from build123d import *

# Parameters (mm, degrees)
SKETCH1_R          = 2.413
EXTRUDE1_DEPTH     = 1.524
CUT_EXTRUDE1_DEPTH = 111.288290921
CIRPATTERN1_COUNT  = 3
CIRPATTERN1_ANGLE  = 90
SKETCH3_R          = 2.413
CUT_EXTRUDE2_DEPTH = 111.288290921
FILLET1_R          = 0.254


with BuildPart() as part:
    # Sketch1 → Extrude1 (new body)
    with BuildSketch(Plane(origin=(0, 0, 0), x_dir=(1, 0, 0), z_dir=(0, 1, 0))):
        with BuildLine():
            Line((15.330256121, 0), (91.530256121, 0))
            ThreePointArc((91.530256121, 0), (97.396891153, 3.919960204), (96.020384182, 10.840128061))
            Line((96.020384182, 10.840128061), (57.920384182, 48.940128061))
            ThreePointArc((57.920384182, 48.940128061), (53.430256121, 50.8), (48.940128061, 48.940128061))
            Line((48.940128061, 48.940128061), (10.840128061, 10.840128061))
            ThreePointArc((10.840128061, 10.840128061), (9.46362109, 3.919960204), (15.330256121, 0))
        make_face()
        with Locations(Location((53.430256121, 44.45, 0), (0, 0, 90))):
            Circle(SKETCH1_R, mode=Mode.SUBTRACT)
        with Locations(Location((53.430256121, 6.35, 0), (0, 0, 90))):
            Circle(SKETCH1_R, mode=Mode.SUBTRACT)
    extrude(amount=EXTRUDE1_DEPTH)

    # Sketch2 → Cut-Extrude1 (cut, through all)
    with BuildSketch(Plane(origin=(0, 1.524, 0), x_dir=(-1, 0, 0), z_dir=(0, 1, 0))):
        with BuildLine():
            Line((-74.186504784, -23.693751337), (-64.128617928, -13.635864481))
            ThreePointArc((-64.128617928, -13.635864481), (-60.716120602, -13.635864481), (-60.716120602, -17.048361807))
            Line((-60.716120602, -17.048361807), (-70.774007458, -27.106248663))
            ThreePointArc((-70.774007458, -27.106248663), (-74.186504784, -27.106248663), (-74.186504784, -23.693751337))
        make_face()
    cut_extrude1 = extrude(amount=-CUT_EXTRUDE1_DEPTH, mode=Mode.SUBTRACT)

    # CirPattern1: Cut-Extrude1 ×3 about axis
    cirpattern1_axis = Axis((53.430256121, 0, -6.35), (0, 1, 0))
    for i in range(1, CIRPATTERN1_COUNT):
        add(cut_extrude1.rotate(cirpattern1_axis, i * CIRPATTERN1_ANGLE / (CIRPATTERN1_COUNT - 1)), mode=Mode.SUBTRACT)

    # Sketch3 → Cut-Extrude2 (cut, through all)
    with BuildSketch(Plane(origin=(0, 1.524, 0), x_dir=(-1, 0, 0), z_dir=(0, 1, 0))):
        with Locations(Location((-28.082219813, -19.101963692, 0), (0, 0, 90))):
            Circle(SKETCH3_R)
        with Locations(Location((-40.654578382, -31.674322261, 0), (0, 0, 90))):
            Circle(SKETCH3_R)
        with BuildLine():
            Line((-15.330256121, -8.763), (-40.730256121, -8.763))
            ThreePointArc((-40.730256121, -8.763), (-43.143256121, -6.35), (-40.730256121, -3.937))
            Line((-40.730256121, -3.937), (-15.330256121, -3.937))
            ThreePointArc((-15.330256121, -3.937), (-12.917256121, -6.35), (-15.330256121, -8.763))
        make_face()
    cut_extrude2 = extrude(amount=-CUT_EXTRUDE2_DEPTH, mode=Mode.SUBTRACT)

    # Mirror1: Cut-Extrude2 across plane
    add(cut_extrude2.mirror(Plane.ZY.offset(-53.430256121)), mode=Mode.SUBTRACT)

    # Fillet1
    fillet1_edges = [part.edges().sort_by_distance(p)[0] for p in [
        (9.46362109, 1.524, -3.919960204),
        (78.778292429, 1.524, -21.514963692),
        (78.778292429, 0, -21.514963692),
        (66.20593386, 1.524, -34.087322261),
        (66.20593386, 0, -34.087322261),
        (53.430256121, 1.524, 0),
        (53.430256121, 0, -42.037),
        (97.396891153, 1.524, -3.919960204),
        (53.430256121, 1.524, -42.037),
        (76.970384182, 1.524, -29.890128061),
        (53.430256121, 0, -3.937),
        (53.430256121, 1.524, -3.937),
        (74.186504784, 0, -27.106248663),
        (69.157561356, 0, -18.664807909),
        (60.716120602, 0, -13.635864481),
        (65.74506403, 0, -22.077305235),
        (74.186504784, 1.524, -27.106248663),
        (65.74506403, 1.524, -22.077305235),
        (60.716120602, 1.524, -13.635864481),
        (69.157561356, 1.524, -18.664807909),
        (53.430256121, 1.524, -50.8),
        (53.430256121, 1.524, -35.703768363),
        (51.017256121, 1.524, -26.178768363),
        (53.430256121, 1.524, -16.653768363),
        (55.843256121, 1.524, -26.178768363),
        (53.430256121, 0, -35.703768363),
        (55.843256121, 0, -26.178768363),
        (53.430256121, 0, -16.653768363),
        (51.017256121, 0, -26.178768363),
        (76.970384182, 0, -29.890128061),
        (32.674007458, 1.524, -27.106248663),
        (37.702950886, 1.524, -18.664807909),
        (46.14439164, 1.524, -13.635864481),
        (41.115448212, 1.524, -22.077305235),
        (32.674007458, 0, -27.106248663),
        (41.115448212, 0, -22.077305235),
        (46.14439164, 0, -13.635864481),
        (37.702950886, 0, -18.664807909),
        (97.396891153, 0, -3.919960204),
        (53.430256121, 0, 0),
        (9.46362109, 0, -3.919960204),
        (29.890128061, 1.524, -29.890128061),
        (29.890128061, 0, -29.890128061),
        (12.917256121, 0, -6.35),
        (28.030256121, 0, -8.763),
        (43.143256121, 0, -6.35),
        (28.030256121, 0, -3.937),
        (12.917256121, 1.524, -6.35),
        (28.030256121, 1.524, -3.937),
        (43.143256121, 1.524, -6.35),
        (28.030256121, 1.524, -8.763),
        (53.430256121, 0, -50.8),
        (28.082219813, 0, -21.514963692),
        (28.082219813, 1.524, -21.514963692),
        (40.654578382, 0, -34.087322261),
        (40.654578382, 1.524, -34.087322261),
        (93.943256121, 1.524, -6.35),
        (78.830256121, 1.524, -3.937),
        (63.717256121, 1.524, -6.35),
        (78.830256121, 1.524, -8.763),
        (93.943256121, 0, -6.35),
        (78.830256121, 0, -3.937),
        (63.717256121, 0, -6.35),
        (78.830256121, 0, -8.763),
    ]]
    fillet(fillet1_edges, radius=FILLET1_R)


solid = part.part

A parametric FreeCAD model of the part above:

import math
import FreeCAD as App
import Part
import Sketcher

V = App.Vector
Q = App.Units.Quantity


def edges_at(feature, points):
    """Names of the edges that pass closest to the given points."""
    edges = feature.Shape.Edges
    near = lambda p: min(range(len(edges)), key=lambda i: edges[i].distToShape(Part.Vertex(*p))[0])
    return sorted({f"Edge{near(p) + 1}" for p in points})

doc = App.newDocument("Part")
params = doc.addObject("Spreadsheet::Sheet", "Params")
for row, (alias, value) in enumerate([
    ("sketch1_diameter", "0.19 in"),
    ("sketch1_width", "3 in"),
    ("sketch1_radius", "0.25 in"),
    ("pad1_length", "0.06 in"),
    ("sketch2_radius", "0.095 in"),
    ("sketch2_length", "0.56 in"),
    ("sketch3_diameter", "0.19 in"),
    ("sketch3_width", "1 in"),
    ("fillet_radius", "0.01 in"),
], start=1):
    params.set(f"A{row}", alias)
    params.set(f"B{row}", "=" + value)
    params.setAlias(f"B{row}", alias)

body = doc.addObject("PartDesign::Body", "Body")

sketch1 = body.newObject("Sketcher::SketchObject", "Sketch")
sketch1.AttachmentSupport = (doc.getObject("XZ_Plane"), [""])
sketch1.MapMode = "FlatFace"
sketch1.addGeometry([
    Part.LineSegment(V(15.3, 0, 0), V(91.5, 0, 0)),
    Part.ArcOfCircle(Part.Circle(V(91.5, -6.3, 0), V(0, 0, 1), 6.3), math.radians(-45), math.radians(90)),
    Part.LineSegment(V(96, -10.8, 0), V(57.9, -48.9, 0)),
    Part.ArcOfCircle(Part.Circle(V(53.4, -44.4, 0), V(0, 0, 1), 6.4), math.radians(-135), math.radians(-45)),
    Part.LineSegment(V(48.9, -48.9, 0), V(10.8, -10.8, 0)),
    Part.ArcOfCircle(Part.Circle(V(15.3, -6.3, 0), V(0, 0, 1), 6.3), math.radians(90), math.radians(225)),
    Part.Circle(V(53.4, -6.3, 0), V(0, 0, 1), 2.4),
    Part.Circle(V(53.4, -44.5, 0), V(0, 0, 1), 2.4),
], False)
sketch1.addConstraint([
    Sketcher.Constraint("Tangent", 0, 2, 1, 2),
    Sketcher.Constraint("Tangent", 1, 1, 2, 1),
    Sketcher.Constraint("Tangent", 2, 2, 3, 2),
    Sketcher.Constraint("Tangent", 3, 1, 4, 1),
    Sketcher.Constraint("Tangent", 4, 2, 5, 2),
    Sketcher.Constraint("Tangent", 5, 1, 0, 1),
    Sketcher.Constraint("Horizontal", 0),
    Sketcher.Constraint("Coincident", 7, 3, 3, 3),
    Sketcher.Constraint("Equal", 1, 3),
    Sketcher.Constraint("Equal", 3, 5),
    Sketcher.Constraint("Equal", 6, 7),
    Sketcher.Constraint("PointOnObject", 0, 2, -1),
    Sketcher.Constraint("Perpendicular", 2, 4),
    Sketcher.Constraint("Horizontal", 5, 3, 6, 3),
    Sketcher.Constraint("Horizontal", 2, 2, 3, 1),
    Sketcher.Constraint("Vertical", 3, 3, 6, 3),
    Sketcher.Constraint("Diameter", 6, Q("0.19 in")),
    Sketcher.Constraint("DistanceX", 0, 1, 0, 2, Q("3 in")),
    Sketcher.Constraint("Radius", 1, Q("0.25 in")),
    Sketcher.Constraint("DistanceX", -1, 1, 3, 1, 48.940128),
])
sketch1.setExpression("Constraints[16]", "Params.sketch1_diameter")
sketch1.setExpression("Constraints[17]", "Params.sketch1_width")
sketch1.setExpression("Constraints[18]", "Params.sketch1_radius")
pad1 = body.newObject("PartDesign::Pad", "Pad")
pad1.Profile = sketch1
pad1.setExpression("Length", "Params.pad1_length")
pad1.Reversed = True

sketch2 = body.newObject("Sketcher::SketchObject", "Sketch001")
sketch2.AttachmentSupport = (doc.getObject("XZ_Plane"), [""])
sketch2.MapMode = "FlatFace"
sketch2.AttachmentOffset = App.Placement(V(0, 0, -0.06 * 25.4), App.Rotation())
sketch2.addGeometry([
    Part.LineSegment(V(64.1, -13.6, 0), V(74.2, -23.7, 0)),
    Part.ArcOfCircle(Part.Circle(V(72.5, -25.4, 0), V(0, 0, 1), 2.4), math.radians(-135), math.radians(45)),
    Part.LineSegment(V(70.8, -27.1, 0), V(60.7, -17, 0)),
    Part.ArcOfCircle(Part.Circle(V(62.4, -15.3, 0), V(0, 0, 1), 2.4), math.radians(45), math.radians(225)),
], False)
sketch2.addConstraint([
    Sketcher.Constraint("Tangent", 0, 2, 1, 2),
    Sketcher.Constraint("Tangent", 1, 1, 2, 1),
    Sketcher.Constraint("Tangent", 2, 2, 3, 2),
    Sketcher.Constraint("Tangent", 3, 1, 0, 1),
    Sketcher.Constraint("Equal", 1, 3),
    Sketcher.Constraint("DistanceY", 1, 3, -1, 1, Q("1 in")),
    Sketcher.Constraint("Angle", 0, Q("-45 deg")),
    Sketcher.Constraint("Radius", 1, Q("0.095 in")),
    Sketcher.Constraint("Distance", 0, Q("0.56 in")),
    Sketcher.Constraint("DistanceX", -1, 1, 3, 3, 62.422369),
])
sketch2.setExpression("Constraints[7]", "Params.sketch2_radius")
sketch2.setExpression("Constraints[8]", "Params.sketch2_length")
pocket1 = body.newObject("PartDesign::Pocket", "Pocket")
pocket1.Profile = sketch2
pocket1.Type = "ThroughAll"
pocket1.Reversed = True
doc.recompute()

datumline = body.newObject("PartDesign::Line", "DatumLine")
datumline.Placement = App.Placement(V(53.430256, 0, -6.35), App.Rotation(V(0, 0, 1), V(0, 1, 0)))
polarpattern = body.newObject("PartDesign::PolarPattern", "PolarPattern")
polarpattern.Originals = [pocket1]
polarpattern.Axis = (datumline, [""])
polarpattern.Angle = 90
polarpattern.Occurrences = 3
body.Tip = polarpattern

sketch3 = body.newObject("Sketcher::SketchObject", "Sketch002")
sketch3.AttachmentSupport = (doc.getObject("XZ_Plane"), [""])
sketch3.MapMode = "FlatFace"
sketch3.AttachmentOffset = App.Placement(V(0, 0, -0.06 * 25.4), App.Rotation())
sketch3.addGeometry([
    Part.Circle(V(28.1, -19.1, 0), V(0, 0, 1), 2.4),
    Part.Circle(V(40.7, -31.7, 0), V(0, 0, 1), 2.4),
    Part.LineSegment(V(40.7, -8.8, 0), V(15.3, -8.8, 0)),
    Part.ArcOfCircle(Part.Circle(V(15.3, -6.3, 0), V(0, 0, 1), 2.4), math.radians(90), math.radians(270)),
    Part.LineSegment(V(15.3, -3.9, 0), V(40.7, -3.9, 0)),
    Part.ArcOfCircle(Part.Circle(V(40.7, -6.3, 0), V(0, 0, 1), 2.4), math.radians(-90), math.radians(90)),
], False)
sketch3.addConstraint([
    Sketcher.Constraint("Tangent", 2, 2, 3, 2),
    Sketcher.Constraint("Tangent", 3, 1, 4, 1),
    Sketcher.Constraint("Tangent", 4, 2, 5, 2),
    Sketcher.Constraint("Tangent", 5, 1, 2, 1),
    Sketcher.Constraint("Horizontal", 2),
    Sketcher.Constraint("Horizontal", 4),
    Sketcher.Constraint("Equal", 0, 1),
    Sketcher.Constraint("Equal", 1, 3),
    Sketcher.Constraint("Diameter", 0, Q("0.19 in")),
    Sketcher.Constraint("DistanceX", 2, 2, 2, 1, Q("1 in")),
    Sketcher.Constraint("DistanceY", 3, 3, -1, 1, Q("0.25 in")),
    Sketcher.Constraint("DistanceX", -1, 1, 0, 3, 28.08222),
    Sketcher.Constraint("DistanceX", -1, 1, 1, 3, 40.654578),
    Sketcher.Constraint("DistanceY", 1, 3, 0, 3, 12.572359),
    Sketcher.Constraint("DistanceY", 0, 3, -1, 1, 19.101964),
    Sketcher.Constraint("DistanceX", -1, 1, 3, 3, 15.330256),
])
sketch3.setExpression("Constraints[8]", "Params.sketch3_diameter")
sketch3.setExpression("Constraints[9]", "Params.sketch3_width")
pocket2 = body.newObject("PartDesign::Pocket", "Pocket001")
pocket2.Profile = sketch3
pocket2.Type = "ThroughAll"
pocket2.Reversed = True
doc.recompute()

datumplane = body.newObject("PartDesign::Plane", "DatumPlane")
datumplane.AttachmentSupport = (doc.getObject("YZ_Plane"), [""])
datumplane.MapMode = "FlatFace"
datumplane.AttachmentOffset = App.Placement(V(0, 0, 53.430256), App.Rotation())
mirrored = body.newObject("PartDesign::Mirrored", "Mirrored")
mirrored.Originals = [pocket2]
mirrored.MirrorPlane = (datumplane, [""])
body.Tip = mirrored
doc.recompute()

fillet = body.newObject("PartDesign::Fillet", "Fillet")
fillet.Base = (mirrored, edges_at(mirrored, [
    (9.464, 1.524, -3.92),
    (78.778, 1.524, -21.515),
    (78.778, 0, -21.515),
    (66.206, 1.524, -34.087),
    (66.206, 0, -34.087),
    (53.43, 1.524, 0),
    (53.43, 0, -42.037),
    (97.397, 1.524, -3.92),
    (53.43, 1.524, -42.037),
    (76.97, 1.524, -29.89),
    (53.43, 0, -3.937),
    (53.43, 1.524, -3.937),
    (74.187, 0, -27.106),
    (69.158, 0, -18.665),
    (60.716, 0, -13.636),
    (65.745, 0, -22.077),
    (74.187, 1.524, -27.106),
    (65.745, 1.524, -22.077),
    (60.716, 1.524, -13.636),
    (69.158, 1.524, -18.665),
    (53.43, 1.524, -50.8),
    (53.43, 1.524, -35.704),
    (51.017, 1.524, -26.179),
    (53.43, 1.524, -16.654),
    (55.843, 1.524, -26.179),
    (53.43, 0, -35.704),
    (55.843, 0, -26.179),
    (53.43, 0, -16.654),
    (51.017, 0, -26.179),
    (76.97, 0, -29.89),
    (32.674, 1.524, -27.106),
    (37.703, 1.524, -18.665),
    (46.144, 1.524, -13.636),
    (41.115, 1.524, -22.077),
    (32.674, 0, -27.106),
    (41.115, 0, -22.077),
    (46.144, 0, -13.636),
    (37.703, 0, -18.665),
    (97.397, 0, -3.92),
    (53.43, 0, 0),
    (9.464, 0, -3.92),
    (29.89, 1.524, -29.89),
    (29.89, 0, -29.89),
    (12.917, 0, -6.35),
    (28.03, 0, -8.763),
    (43.143, 0, -6.35),
    (28.03, 0, -3.937),
    (12.917, 1.524, -6.35),
    (28.03, 1.524, -3.937),
    (43.143, 1.524, -6.35),
    (28.03, 1.524, -8.763),
    (53.43, 0, -50.8),
    (28.082, 0, -21.515),
    (28.082, 1.524, -21.515),
    (40.655, 0, -34.087),
    (40.655, 1.524, -34.087),
    (93.943, 1.524, -6.35),
    (78.83, 1.524, -3.937),
    (63.717, 1.524, -6.35),
    (78.83, 1.524, -8.763),
    (93.943, 0, -6.35),
    (78.83, 0, -3.937),
    (63.717, 0, -6.35),
    (78.83, 0, -8.763),
]))
fillet.setExpression("Radius", "Params.fillet_radius")

doc.recompute()
